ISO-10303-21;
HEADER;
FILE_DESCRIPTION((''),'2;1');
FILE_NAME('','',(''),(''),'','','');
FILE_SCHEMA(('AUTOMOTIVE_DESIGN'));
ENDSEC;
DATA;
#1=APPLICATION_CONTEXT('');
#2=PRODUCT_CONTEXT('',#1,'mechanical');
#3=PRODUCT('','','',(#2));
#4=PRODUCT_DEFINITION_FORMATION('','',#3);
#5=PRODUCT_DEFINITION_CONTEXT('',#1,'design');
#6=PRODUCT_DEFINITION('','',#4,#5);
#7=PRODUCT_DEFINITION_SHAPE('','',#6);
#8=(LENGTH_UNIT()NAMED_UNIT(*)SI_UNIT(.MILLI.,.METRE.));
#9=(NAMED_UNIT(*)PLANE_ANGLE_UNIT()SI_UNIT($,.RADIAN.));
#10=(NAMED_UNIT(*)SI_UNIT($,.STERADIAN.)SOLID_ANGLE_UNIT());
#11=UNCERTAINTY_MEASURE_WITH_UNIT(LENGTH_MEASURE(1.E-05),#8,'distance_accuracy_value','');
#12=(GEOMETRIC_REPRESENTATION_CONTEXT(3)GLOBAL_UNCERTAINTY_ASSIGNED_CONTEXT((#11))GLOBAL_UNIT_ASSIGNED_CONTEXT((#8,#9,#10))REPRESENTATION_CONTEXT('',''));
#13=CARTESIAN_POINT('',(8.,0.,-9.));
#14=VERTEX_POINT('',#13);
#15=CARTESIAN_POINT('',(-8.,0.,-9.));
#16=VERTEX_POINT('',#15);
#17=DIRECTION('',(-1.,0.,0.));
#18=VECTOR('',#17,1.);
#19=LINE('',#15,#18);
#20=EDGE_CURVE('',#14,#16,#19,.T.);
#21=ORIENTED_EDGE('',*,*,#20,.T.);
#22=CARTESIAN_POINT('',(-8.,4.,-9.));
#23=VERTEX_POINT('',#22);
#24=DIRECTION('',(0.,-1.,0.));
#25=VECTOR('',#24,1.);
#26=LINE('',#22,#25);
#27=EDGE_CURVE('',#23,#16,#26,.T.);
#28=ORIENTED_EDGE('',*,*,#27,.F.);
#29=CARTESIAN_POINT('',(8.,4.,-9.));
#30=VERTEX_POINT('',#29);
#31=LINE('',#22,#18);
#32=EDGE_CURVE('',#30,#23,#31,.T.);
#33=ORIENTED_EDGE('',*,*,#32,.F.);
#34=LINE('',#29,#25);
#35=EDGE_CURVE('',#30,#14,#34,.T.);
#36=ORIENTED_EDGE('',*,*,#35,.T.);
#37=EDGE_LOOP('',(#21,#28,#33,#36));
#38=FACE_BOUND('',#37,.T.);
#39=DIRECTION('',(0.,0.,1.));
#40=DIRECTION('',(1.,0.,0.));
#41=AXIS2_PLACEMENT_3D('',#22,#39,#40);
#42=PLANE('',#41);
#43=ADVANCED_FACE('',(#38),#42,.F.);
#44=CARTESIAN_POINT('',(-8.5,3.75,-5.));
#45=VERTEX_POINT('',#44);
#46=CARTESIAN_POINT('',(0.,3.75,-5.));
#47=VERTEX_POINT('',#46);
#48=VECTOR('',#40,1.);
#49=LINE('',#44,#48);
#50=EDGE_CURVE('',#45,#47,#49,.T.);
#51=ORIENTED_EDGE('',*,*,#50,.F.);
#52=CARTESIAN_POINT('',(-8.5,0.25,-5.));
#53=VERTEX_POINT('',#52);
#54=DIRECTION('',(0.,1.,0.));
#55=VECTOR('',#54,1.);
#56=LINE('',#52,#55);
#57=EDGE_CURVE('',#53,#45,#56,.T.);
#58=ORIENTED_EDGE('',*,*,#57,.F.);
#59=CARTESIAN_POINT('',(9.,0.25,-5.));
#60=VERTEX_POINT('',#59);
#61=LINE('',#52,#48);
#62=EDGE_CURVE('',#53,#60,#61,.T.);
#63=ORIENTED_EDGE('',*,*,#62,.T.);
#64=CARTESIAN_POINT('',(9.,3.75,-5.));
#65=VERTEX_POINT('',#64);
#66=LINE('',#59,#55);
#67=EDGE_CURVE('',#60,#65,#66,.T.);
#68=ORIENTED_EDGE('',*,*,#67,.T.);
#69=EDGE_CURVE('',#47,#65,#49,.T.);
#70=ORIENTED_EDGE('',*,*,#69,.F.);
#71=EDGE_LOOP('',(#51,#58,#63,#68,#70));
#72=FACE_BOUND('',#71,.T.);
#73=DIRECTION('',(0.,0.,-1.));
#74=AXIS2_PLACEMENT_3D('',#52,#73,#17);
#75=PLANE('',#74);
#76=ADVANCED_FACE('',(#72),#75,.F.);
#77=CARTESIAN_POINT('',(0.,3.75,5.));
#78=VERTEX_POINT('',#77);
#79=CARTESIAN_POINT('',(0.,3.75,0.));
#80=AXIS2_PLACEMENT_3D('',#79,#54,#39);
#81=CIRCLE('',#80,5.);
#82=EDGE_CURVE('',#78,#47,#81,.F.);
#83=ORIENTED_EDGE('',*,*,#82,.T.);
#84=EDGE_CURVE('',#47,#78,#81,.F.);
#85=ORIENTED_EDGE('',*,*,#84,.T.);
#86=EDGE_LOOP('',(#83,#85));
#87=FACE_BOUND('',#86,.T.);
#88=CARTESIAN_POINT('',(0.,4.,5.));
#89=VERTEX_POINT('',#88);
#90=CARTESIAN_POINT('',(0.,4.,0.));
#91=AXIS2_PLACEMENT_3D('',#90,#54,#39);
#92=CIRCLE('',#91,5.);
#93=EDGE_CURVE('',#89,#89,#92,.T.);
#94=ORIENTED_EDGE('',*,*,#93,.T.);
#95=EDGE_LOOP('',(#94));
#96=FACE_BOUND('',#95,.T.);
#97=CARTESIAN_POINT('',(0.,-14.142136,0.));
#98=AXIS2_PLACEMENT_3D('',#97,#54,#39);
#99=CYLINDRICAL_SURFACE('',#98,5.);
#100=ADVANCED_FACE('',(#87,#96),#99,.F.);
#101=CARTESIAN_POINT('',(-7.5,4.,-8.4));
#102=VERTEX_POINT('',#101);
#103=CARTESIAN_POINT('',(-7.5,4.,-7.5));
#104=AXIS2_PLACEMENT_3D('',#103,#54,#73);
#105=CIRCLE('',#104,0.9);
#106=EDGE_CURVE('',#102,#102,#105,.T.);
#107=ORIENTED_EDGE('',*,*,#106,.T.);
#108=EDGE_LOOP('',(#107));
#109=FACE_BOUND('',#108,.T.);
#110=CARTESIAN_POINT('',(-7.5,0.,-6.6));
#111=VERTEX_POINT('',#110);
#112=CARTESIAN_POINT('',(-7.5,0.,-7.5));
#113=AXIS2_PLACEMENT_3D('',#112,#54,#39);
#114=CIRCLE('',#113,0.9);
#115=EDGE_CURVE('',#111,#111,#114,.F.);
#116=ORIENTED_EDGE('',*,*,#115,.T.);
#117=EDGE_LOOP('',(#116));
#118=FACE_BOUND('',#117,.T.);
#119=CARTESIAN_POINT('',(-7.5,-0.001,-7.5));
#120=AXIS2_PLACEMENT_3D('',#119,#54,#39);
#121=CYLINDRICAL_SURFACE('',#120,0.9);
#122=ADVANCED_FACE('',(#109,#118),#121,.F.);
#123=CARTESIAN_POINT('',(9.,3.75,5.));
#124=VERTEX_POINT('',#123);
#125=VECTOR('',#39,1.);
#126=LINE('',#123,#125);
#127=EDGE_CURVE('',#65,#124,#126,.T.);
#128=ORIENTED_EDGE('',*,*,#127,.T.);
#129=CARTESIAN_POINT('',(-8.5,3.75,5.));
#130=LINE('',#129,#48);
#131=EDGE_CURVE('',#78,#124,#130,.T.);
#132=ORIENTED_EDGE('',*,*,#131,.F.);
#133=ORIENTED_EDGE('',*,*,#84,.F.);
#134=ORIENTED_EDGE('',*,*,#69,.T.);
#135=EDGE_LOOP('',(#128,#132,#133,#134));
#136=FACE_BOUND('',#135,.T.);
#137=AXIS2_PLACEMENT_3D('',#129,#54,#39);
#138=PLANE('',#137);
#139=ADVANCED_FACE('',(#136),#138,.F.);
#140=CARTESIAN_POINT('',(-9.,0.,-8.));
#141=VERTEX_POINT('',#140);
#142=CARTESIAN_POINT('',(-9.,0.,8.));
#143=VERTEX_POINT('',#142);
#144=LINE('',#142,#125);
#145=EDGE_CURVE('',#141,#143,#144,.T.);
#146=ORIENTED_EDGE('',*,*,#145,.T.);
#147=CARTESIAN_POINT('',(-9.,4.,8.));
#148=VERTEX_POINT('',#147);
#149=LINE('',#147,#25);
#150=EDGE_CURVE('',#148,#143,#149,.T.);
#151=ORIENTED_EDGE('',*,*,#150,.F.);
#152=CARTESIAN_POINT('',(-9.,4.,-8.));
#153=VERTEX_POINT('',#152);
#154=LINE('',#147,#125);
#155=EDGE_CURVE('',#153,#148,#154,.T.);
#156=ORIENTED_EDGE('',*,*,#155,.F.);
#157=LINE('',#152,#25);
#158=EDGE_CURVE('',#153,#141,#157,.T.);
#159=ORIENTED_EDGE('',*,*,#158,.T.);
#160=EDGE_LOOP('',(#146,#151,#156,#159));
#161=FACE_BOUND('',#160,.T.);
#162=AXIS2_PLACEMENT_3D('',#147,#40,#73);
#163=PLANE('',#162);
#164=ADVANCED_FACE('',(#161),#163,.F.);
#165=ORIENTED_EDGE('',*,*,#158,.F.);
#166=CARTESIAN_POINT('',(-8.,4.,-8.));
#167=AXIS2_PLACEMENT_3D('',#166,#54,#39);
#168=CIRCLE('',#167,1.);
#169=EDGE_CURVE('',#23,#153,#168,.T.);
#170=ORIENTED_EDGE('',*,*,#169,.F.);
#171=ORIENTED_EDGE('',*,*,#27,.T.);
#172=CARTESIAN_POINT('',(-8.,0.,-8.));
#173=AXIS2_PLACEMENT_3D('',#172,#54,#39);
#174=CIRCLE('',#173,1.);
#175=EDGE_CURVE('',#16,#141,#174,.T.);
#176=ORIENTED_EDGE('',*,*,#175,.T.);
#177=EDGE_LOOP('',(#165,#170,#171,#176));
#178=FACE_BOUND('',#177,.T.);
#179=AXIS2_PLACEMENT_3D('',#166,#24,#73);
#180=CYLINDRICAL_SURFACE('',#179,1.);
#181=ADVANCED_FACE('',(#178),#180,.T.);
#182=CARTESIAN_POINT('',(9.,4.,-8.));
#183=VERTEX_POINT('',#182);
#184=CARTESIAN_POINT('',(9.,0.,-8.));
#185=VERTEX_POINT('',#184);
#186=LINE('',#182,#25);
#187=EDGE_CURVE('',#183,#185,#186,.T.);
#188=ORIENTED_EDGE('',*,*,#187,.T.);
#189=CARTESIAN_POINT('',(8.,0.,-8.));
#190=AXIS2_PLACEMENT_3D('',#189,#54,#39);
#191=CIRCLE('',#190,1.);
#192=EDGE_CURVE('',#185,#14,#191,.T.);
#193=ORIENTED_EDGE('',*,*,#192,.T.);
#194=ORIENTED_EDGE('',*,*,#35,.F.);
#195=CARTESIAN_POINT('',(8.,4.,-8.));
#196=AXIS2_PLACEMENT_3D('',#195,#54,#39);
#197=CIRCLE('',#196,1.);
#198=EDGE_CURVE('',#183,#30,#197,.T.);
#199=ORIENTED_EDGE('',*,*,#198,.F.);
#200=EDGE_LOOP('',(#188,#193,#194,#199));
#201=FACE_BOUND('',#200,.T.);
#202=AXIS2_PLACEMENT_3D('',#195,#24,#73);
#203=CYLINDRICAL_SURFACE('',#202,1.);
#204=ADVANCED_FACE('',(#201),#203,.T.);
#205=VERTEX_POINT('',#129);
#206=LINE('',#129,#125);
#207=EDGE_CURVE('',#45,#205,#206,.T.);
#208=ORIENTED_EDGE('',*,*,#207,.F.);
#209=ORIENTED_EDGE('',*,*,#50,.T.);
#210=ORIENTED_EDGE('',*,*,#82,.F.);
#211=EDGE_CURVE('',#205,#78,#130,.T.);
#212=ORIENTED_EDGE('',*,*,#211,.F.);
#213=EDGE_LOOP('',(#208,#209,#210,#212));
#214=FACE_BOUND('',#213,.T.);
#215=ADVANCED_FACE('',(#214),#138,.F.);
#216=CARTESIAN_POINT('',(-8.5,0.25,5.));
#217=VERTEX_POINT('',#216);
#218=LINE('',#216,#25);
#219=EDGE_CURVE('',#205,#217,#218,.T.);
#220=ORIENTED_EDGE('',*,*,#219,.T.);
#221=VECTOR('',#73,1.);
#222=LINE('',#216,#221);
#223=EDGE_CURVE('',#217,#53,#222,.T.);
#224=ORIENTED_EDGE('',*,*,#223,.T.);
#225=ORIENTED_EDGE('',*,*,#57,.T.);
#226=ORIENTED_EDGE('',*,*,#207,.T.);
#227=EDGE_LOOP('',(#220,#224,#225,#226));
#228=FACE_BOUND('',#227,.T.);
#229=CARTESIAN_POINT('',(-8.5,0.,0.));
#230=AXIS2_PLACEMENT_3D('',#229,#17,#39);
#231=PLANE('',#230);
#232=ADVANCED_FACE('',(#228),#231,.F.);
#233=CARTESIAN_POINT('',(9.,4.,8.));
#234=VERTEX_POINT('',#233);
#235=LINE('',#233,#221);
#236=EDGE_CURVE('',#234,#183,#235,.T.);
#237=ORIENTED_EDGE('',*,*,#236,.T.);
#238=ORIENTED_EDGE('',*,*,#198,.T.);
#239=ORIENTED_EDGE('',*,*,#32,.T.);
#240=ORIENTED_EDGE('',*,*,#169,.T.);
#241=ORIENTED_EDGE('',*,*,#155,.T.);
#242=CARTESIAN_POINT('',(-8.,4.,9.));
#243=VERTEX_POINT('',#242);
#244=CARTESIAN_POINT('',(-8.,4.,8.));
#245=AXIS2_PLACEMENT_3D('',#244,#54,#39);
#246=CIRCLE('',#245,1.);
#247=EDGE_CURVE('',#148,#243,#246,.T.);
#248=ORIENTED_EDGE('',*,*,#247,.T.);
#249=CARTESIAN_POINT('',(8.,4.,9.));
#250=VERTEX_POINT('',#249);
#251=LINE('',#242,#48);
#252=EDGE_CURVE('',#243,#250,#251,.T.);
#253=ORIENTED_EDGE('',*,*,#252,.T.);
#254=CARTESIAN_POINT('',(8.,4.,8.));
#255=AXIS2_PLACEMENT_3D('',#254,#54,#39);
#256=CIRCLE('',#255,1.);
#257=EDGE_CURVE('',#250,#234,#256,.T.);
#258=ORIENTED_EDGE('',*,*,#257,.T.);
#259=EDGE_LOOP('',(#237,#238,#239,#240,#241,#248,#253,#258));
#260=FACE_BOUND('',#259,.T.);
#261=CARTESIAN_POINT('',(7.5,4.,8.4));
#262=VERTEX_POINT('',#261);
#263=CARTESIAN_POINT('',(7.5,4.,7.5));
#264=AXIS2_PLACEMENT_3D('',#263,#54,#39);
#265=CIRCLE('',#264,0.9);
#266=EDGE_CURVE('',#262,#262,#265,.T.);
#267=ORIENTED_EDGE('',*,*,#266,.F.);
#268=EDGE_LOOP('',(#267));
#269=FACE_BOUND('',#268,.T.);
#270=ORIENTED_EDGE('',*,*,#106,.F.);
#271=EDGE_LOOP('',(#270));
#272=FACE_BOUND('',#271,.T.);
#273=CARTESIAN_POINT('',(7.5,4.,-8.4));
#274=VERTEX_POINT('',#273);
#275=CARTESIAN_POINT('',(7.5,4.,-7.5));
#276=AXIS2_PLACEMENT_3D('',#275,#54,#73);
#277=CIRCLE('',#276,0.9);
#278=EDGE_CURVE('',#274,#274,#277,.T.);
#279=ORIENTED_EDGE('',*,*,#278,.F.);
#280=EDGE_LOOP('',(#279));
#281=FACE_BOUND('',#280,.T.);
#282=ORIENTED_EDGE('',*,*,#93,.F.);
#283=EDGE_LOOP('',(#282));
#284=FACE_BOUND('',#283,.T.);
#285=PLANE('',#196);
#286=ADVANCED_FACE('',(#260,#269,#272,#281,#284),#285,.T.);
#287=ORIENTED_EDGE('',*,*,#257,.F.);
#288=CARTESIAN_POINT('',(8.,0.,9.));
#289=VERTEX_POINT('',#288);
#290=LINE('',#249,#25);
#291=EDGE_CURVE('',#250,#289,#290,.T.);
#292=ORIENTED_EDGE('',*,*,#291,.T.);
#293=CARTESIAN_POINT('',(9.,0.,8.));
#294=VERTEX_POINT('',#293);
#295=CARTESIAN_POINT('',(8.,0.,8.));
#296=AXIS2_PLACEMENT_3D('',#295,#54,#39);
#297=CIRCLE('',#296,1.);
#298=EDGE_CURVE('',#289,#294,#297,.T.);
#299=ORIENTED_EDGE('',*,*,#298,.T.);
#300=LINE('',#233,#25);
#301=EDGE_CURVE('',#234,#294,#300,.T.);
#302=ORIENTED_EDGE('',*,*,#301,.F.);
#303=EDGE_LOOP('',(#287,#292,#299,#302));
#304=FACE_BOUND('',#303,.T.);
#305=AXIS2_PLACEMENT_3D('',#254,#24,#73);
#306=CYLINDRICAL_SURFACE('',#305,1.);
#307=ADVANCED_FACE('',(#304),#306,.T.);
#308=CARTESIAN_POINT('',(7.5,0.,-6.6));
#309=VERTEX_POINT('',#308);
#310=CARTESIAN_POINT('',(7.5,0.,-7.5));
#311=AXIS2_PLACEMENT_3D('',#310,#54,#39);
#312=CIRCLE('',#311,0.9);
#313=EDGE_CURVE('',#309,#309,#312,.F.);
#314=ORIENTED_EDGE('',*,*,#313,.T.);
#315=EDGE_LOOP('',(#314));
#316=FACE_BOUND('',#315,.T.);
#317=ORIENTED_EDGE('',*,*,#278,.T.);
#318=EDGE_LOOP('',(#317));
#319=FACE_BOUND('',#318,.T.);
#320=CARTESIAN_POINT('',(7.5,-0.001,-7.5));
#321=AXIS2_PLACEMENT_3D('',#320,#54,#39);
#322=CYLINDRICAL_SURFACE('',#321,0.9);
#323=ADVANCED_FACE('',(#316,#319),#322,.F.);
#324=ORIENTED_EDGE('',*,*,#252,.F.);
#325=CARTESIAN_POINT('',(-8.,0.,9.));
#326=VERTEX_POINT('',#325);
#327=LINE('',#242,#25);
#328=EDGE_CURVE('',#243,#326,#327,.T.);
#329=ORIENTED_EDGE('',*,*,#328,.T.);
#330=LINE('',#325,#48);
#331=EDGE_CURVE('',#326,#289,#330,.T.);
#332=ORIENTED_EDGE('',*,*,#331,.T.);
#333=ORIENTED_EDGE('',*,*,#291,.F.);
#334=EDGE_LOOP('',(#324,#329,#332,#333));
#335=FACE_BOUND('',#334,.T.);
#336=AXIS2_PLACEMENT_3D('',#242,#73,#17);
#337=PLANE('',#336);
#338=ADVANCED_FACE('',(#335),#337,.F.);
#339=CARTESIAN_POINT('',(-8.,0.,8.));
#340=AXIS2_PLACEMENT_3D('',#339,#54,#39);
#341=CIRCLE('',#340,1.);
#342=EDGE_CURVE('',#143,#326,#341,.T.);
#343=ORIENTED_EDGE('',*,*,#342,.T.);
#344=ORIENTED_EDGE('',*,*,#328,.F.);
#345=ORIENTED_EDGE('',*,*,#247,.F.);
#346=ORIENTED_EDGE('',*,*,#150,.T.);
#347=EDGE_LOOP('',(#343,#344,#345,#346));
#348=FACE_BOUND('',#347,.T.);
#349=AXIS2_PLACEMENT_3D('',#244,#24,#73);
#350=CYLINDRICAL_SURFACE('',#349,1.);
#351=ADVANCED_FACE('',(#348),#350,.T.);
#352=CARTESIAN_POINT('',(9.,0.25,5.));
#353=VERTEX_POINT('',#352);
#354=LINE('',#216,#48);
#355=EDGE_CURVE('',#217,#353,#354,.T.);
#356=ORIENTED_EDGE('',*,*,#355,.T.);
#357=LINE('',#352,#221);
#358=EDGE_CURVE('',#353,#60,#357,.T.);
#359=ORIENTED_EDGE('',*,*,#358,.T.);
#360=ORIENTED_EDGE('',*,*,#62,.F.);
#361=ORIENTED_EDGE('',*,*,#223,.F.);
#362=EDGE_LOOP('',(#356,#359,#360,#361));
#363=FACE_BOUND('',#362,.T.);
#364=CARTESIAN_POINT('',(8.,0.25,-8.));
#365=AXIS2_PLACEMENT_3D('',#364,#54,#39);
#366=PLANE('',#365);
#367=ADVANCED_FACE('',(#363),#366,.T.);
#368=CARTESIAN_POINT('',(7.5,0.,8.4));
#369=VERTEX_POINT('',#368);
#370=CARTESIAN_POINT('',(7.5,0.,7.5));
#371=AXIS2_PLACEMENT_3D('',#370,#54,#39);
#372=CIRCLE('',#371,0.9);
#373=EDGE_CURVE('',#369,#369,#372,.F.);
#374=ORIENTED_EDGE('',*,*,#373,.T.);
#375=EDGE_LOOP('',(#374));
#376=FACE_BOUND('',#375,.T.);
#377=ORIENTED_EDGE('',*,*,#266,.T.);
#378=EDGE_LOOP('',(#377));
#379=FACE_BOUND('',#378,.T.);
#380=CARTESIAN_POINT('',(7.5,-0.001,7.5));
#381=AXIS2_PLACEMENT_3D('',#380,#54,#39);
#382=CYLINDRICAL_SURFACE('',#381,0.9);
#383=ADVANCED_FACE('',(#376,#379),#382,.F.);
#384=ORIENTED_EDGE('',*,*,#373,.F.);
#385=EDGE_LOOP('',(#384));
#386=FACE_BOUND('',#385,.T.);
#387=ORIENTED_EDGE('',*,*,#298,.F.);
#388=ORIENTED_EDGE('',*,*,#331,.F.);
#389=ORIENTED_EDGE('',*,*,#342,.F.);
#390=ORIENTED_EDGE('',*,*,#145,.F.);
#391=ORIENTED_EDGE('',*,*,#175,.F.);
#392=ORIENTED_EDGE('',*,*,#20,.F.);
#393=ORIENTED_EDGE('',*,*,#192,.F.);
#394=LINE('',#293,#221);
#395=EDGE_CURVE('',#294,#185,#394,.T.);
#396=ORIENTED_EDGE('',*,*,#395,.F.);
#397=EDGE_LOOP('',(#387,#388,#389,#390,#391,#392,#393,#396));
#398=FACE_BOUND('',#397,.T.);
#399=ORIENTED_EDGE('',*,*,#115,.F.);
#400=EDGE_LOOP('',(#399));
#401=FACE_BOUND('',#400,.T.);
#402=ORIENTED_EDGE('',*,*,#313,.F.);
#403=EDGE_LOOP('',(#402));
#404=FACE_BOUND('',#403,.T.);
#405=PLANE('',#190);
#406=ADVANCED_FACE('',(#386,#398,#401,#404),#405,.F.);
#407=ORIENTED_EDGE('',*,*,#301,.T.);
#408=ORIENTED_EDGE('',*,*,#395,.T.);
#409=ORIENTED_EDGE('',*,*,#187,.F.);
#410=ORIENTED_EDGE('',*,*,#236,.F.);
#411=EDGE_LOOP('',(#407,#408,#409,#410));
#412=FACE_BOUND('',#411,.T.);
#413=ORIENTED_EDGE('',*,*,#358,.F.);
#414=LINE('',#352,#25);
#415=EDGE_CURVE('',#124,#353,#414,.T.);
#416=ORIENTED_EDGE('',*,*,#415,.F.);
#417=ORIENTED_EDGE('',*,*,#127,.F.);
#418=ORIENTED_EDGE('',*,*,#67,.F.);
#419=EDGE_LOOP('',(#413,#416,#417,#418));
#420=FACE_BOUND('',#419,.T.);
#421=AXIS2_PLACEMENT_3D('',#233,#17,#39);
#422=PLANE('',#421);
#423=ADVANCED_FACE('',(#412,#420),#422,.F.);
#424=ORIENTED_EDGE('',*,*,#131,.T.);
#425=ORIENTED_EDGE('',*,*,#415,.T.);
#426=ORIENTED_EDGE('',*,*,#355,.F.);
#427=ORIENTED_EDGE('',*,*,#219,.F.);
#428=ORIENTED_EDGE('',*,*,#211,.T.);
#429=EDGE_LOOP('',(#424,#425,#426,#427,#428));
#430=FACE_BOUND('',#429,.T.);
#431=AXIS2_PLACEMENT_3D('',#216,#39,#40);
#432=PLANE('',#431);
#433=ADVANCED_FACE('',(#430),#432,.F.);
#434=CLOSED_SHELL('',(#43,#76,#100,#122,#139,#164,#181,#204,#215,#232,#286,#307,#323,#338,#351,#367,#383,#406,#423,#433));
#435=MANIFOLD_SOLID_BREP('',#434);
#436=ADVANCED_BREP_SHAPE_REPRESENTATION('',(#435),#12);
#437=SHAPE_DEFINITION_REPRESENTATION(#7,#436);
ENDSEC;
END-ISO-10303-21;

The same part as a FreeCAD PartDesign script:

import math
import FreeCAD as App
import Part
import Sketcher
from FreeCAD import Vector
Q = App.Units.Quantity


def add_polygon(sketch, points):
    """Adds a closed chain of lines whose ends are joined by coincident constraints."""
    first, n = sketch.GeometryCount, len(points)
    for a, b in zip(points, points[1:] + points[:1]):
        sketch.addGeometry(Part.LineSegment(App.Vector(*a, 0), App.Vector(*b, 0)), False)
    for i in range(n):
        sketch.addConstraint(Sketcher.Constraint("Coincident", first + i, 2, first + (i + 1) % n, 1))

doc = App.newDocument("Part")
body = doc.addObject("PartDesign::Body", "Body")

sketch1 = doc.addObject("Sketcher::SketchObject", "Sketch")
body.addObject(sketch1)
sketch1.AttachmentSupport = (doc.XZ_Plane, [""])
sketch1.MapMode = "FlatFace"
sketch1.addGeometry([
    Part.LineSegment(Vector(-8, 9, 0), Vector(8, 9, 0)),
    Part.ArcOfCircle(Part.Circle(Vector(8, 8, 0), Vector(0, 0, 1), 1), math.radians(0), math.radians(90)),
    Part.LineSegment(Vector(9, 8, 0), Vector(9, -8, 0)),
    Part.ArcOfCircle(Part.Circle(Vector(8, -8, 0), Vector(0, 0, 1), 1), math.radians(-90), math.radians(0)),
    Part.LineSegment(Vector(8, -9, 0), Vector(-8, -9, 0)),
    Part.ArcOfCircle(Part.Circle(Vector(-8, -8, 0), Vector(0, 0, 1), 1), math.radians(-180), math.radians(-90)),
    Part.LineSegment(Vector(-9, -8, 0), Vector(-9, 8, 0)),
    Part.ArcOfCircle(Part.Circle(Vector(-8, 8, 0), Vector(0, 0, 1), 1), math.radians(90), math.radians(180)),
], False)
sketch1.addConstraint([
    Sketcher.Constraint("Tangent", 0, 2, 1, 2),
    Sketcher.Constraint("Tangent", 1, 1, 2, 1),
    Sketcher.Constraint("Tangent", 2, 2, 3, 2),
    Sketcher.Constraint("Tangent", 3, 1, 4, 1),
    Sketcher.Constraint("Tangent", 4, 2, 5, 2),
    Sketcher.Constraint("Tangent", 5, 1, 6, 1),
    Sketcher.Constraint("Tangent", 6, 2, 7, 2),
    Sketcher.Constraint("Tangent", 7, 1, 0, 1),
    Sketcher.Constraint("Horizontal", 0),
    Sketcher.Constraint("Vertical", 2),
    Sketcher.Constraint("Horizontal", 4),
    Sketcher.Constraint("Vertical", 6),
    Sketcher.Constraint("Equal", 1, 3),
    Sketcher.Constraint("Equal", 3, 5),
    Sketcher.Constraint("Equal", 5, 7),
    Sketcher.Constraint("Symmetric", 1, 3, 5, 3, -1, 1),
    Sketcher.Constraint("Equal", 4, 2),
    Sketcher.Constraint("Radius", 1, Q("1 mm")),
    Sketcher.Constraint("DistanceX", 0, 1, 0, 2, Q("16 mm")),
])
pad1 = doc.addObject("PartDesign::Pad", "Pad")
body.addObject(pad1)
pad1.Profile = sketch1
pad1.Length = 4
pad1.Reversed = True

sketch2 = doc.addObject("Sketcher::SketchObject", "Sketch001")
body.addObject(sketch2)
sketch2.AttachmentSupport = (doc.XZ_Plane, [""])
sketch2.MapMode = "FlatFace"
sketch2.AttachmentOffset = App.Placement(Vector(0, 0, -4), App.Rotation())
sketch2.addGeometry(Part.Circle(Vector(7.5, 7.5, 0), Vector(0, 0, 1), 0.9), False)
sketch2.addConstraint([
    Sketcher.Constraint("Diameter", 0, Q("1.8 mm")),
    Sketcher.Constraint("DistanceX", -1, 1, 0, 3, Q("7.5 mm")),
    Sketcher.Constraint("DistanceY", -1, 1, 0, 3, Q("7.5 mm")),
])
pocket1 = doc.addObject("PartDesign::Pocket", "Pocket")
body.addObject(pocket1)
pocket1.Profile = sketch2
pocket1.Type = "UpToFirst"
pocket1.Reversed = True

sketch3 = doc.addObject("Sketcher::SketchObject", "Sketch002")
body.addObject(sketch3)
sketch3.AttachmentSupport = (doc.XZ_Plane, [""])
sketch3.MapMode = "FlatFace"
sketch3.AttachmentOffset = App.Placement(Vector(0, 0, -4), App.Rotation())
sketch3.addGeometry(Part.Circle(Vector(7.5, -7.5, 0), Vector(0, 0, 1), 0.9), False)
sketch3.addConstraint([
    Sketcher.Constraint("Diameter", 0, Q("1.8 mm")),
    Sketcher.Constraint("DistanceX", -1, 1, 0, 3, Q("7.5 mm")),
    Sketcher.Constraint("DistanceY", 0, 3, -1, 1, Q("7.5 mm")),
])
pocket2 = doc.addObject("PartDesign::Pocket", "Pocket001")
body.addObject(pocket2)
pocket2.Profile = sketch3
pocket2.Type = "UpToFirst"
pocket2.Reversed = True

sketch4 = doc.addObject("Sketcher::SketchObject", "Sketch003")
body.addObject(sketch4)
sketch4.AttachmentSupport = (doc.XZ_Plane, [""])
sketch4.MapMode = "FlatFace"
sketch4.AttachmentOffset = App.Placement(Vector(0, 0, -4), App.Rotation())
sketch4.addGeometry(Part.Circle(Vector(-7.5, -7.5, 0), Vector(0, 0, 1), 0.9), False)
sketch4.addConstraint([
    Sketcher.Constraint("Diameter", 0, Q("1.8 mm")),
    Sketcher.Constraint("DistanceX", 0, 3, -1, 1, Q("7.5 mm")),
    Sketcher.Constraint("DistanceY", 0, 3, -1, 1, Q("7.5 mm")),
])
pocket3 = doc.addObject("PartDesign::Pocket", "Pocket002")
body.addObject(pocket3)
pocket3.Profile = sketch4
pocket3.Type = "UpToFirst"
pocket3.Reversed = True

sketch5 = doc.addObject("Sketcher::SketchObject", "Sketch004")
body.addObject(sketch5)
sketch5.AttachmentSupport = (doc.XZ_Plane, [""])
sketch5.MapMode = "FlatFace"
sketch5.AttachmentOffset = App.Placement(Vector(0, 0, -4), App.Rotation())
sketch5.addGeometry(Part.Circle(Vector(0, 0, 0), Vector(0, 0, 1), 5), False)
sketch5.addConstraint([
    Sketcher.Constraint("Coincident", 0, 3, -1, 1),
    Sketcher.Constraint("Diameter", 0, Q("10 mm")),
])
pocket4 = doc.addObject("PartDesign::Pocket", "Pocket003")
body.addObject(pocket4)
pocket4.Profile = sketch5
pocket4.Length = 3.75
pocket4.Reversed = True

sketch6 = doc.addObject("Sketcher::SketchObject", "Sketch005")
body.addObject(sketch6)
sketch6.AttachmentSupport = (doc.YZ_Plane, [""])
sketch6.MapMode = "FlatFace"
sketch6.AttachmentOffset = App.Placement(Vector(0, 0, 9), App.Rotation())
add_polygon(sketch6, [(3.8, 5), (0.2, 5), (0.2, -5), (3.8, -5)])
sketch6.addConstraint([
    Sketcher.Constraint("Horizontal", 0),
    Sketcher.Constraint("Vertical", 1),
    Sketcher.Constraint("Horizontal", 2),
    Sketcher.Constraint("Vertical", 3),
    Sketcher.Constraint("DistanceY", 1, 2, 1, 1, Q("10 mm")),
    Sketcher.Constraint("DistanceX", 0, 2, 0, 1, Q("3.5 mm")),
    Sketcher.Constraint("DistanceY", -1, 1, 0, 2, Q("5 mm")),
    Sketcher.Constraint("DistanceX", -1, 1, 0, 2, Q("0.25 mm")),
])
pocket5 = doc.addObject("PartDesign::Pocket", "Pocket004")
body.addObject(pocket5)
pocket5.Profile = sketch6
pocket5.Length = 17.5

doc.recompute()
